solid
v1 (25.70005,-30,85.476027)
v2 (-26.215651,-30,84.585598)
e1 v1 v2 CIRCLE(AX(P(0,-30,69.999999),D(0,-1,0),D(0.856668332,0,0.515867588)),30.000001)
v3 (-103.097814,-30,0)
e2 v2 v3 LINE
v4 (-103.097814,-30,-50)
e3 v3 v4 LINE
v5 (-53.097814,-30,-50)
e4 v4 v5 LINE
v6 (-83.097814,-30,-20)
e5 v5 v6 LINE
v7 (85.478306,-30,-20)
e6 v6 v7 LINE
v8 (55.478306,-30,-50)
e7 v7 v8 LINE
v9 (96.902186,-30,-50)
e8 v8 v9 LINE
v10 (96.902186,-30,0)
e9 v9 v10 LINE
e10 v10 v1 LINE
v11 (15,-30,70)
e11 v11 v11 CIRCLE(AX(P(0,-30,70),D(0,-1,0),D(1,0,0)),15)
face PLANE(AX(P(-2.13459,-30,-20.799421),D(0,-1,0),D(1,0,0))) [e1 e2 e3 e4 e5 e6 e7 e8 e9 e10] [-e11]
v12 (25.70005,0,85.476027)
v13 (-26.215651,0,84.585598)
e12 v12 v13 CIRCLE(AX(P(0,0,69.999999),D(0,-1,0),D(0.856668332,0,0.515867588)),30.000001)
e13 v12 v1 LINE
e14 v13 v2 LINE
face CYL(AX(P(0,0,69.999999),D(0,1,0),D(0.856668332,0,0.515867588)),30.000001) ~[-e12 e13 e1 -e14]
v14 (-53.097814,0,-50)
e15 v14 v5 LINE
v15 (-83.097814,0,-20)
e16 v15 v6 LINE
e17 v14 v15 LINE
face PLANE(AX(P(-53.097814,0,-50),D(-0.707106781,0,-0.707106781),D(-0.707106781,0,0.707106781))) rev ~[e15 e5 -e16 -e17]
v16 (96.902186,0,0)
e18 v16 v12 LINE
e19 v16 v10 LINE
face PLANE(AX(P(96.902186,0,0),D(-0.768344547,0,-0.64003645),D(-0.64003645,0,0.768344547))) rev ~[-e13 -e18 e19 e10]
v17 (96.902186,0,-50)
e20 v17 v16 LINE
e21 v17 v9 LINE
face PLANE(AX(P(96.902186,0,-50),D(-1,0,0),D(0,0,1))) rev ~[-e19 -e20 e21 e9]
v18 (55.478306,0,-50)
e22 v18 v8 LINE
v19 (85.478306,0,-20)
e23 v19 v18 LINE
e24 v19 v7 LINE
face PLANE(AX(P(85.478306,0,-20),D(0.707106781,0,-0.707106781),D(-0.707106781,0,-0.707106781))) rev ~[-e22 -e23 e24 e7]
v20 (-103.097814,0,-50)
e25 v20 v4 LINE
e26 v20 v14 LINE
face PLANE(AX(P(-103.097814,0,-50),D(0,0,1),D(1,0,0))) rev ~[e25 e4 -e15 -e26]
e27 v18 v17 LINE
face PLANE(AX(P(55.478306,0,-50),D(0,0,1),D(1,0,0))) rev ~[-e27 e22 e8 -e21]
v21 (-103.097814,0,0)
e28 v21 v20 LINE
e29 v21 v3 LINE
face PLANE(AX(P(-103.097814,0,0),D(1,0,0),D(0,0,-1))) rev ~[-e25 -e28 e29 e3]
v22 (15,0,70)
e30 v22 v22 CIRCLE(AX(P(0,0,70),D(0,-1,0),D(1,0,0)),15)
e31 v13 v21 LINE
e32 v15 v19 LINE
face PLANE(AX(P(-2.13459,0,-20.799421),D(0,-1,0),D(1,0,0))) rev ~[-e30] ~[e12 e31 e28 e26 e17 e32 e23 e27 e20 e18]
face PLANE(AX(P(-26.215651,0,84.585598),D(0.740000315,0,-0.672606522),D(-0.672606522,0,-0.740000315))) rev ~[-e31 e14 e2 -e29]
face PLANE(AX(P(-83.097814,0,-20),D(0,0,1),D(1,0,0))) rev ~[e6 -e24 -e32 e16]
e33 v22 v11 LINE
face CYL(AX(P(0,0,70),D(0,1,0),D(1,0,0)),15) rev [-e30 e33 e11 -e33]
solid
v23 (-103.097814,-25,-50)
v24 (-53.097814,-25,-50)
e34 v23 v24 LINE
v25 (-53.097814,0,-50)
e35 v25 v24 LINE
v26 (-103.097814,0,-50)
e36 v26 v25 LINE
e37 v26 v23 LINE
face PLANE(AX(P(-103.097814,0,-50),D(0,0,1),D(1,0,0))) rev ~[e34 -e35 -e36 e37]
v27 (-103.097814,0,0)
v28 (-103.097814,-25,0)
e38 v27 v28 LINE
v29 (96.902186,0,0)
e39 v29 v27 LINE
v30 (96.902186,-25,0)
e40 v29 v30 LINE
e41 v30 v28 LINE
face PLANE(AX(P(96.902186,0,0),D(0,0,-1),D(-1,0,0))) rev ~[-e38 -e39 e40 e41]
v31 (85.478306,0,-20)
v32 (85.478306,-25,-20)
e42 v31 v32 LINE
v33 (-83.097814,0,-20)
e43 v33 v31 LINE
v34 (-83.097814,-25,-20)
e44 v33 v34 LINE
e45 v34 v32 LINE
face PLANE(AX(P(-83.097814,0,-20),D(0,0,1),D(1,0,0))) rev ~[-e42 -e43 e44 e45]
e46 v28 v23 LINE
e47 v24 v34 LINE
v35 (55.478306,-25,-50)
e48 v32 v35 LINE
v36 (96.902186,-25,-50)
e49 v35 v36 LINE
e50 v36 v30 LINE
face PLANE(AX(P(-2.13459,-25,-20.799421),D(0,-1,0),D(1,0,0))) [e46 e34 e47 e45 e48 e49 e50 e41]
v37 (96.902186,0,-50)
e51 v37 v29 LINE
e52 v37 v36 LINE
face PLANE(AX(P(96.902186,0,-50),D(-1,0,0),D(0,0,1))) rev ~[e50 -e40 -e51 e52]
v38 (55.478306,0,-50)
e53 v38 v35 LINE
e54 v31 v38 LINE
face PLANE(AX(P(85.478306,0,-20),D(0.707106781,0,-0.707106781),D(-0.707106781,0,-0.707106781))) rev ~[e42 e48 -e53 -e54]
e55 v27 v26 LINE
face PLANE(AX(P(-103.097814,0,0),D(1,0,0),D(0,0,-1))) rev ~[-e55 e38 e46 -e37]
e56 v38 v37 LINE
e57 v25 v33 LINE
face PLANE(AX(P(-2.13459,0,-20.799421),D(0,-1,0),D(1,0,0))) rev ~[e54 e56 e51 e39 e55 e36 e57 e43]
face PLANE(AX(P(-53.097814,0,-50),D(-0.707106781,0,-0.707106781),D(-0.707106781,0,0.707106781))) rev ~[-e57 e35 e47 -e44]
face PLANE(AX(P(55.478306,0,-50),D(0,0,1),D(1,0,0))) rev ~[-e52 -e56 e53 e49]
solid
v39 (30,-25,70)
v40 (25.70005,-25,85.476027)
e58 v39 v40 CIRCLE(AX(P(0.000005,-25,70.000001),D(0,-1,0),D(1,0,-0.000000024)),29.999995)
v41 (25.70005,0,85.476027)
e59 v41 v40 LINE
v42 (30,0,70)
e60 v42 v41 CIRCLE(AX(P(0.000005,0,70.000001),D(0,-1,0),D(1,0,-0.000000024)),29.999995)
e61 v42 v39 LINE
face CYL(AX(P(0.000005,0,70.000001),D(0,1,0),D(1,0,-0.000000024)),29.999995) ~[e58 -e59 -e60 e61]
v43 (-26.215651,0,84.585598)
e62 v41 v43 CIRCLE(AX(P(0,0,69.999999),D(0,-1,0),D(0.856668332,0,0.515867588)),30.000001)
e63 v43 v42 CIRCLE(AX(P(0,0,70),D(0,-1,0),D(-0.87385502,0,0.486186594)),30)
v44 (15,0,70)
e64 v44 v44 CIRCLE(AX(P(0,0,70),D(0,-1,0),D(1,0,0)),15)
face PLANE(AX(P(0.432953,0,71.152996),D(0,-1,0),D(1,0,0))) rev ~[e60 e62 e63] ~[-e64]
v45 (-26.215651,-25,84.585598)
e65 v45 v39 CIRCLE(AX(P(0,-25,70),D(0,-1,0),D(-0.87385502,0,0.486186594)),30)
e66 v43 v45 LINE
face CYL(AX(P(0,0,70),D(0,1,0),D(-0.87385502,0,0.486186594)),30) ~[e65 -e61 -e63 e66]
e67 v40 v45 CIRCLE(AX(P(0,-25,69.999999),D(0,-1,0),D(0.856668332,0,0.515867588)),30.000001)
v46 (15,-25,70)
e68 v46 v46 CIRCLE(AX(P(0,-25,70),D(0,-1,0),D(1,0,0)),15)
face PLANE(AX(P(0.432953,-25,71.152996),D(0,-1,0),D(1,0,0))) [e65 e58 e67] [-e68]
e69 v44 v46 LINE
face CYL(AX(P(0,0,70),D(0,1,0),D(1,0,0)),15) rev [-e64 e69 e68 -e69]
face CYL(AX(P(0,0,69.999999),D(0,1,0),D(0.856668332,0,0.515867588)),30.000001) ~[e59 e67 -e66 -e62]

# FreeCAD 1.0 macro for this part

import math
import FreeCAD as App
import Part
import Sketcher

V = App.Vector
Q = App.Units.Quantity

doc = App.newDocument("Part")
params = doc.addObject("Spreadsheet::Sheet", "Params")
for row, (alias, value) in enumerate([
    ("sketch1_diameter", "30 mm"),
    ("sketch1_radius", "30.000001 mm"),
    ("sketch1_width", "50 mm"),
    ("sketch1_width2", "200 mm"),
    ("pad1_length", "25 mm"),
    ("sketch2_diameter", "30 mm"),
    ("sketch2_radius", "30.000001 mm"),
    ("sketch2_width", "50 mm"),
    ("pad2_length", "30 mm"),
], start=1):
    params.set(f"A{row}", alias)
    params.set(f"B{row}", "=" + value)
    params.setAlias(f"B{row}", alias)

body = doc.addObject("PartDesign::Body", "Body")
body.AllowCompound = True

# Sketch on XZ plane
sketch1 = doc.addObject("Sketcher::SketchObject", "Sketch")
body.addObject(sketch1)
sketch1.AttachmentSupport = (doc.XZ_Plane, [""])
sketch1.MapMode = "FlatFace"
sketch1.addGeometry([
    Part.LineSegment(V(-103, 0, 0), V(-103, -50, 0)),  # 0
    Part.LineSegment(V(-103, -50, 0), V(-53, -50, 0)),  # 1
    Part.LineSegment(V(-53, -50, 0), V(-83, -20, 0)),  # 2
    Part.LineSegment(V(-83, -20, 0), V(85, -20, 0)),  # 3
    Part.LineSegment(V(85, -20, 0), V(55, -50, 0)),  # 4
    Part.LineSegment(V(55, -50, 0), V(97, -50, 0)),  # 5
    Part.LineSegment(V(97, -50, 0), V(97, 0, 0)),  # 6
    Part.LineSegment(V(97, 0, 0), V(-103, 0, 0)),  # 7
    Part.ArcOfCircle(Part.Circle(V(0, 70, 0), V(0, 0, 1), 30), math.radians(31), math.radians(151)),  # 8
    Part.ArcOfCircle(Part.Circle(V(0, 70, 0), V(0, 0, 1), 30), math.radians(151), math.radians(360)),  # 9
    Part.ArcOfCircle(Part.Circle(V(0, 70, 0), V(0, 0, 1), 30), math.radians(0), math.radians(31)),  # 10
    Part.Circle(V(0, 70, 0), V(0, 0, 1), 15),  # 11
], False)
sketch1.addConstraint([
    Sketcher.Constraint("Coincident", 0, 2, 1, 1),
    Sketcher.Constraint("Coincident", 1, 2, 2, 1),
    Sketcher.Constraint("Coincident", 2, 2, 3, 1),
    Sketcher.Constraint("Coincident", 3, 2, 4, 1),
    Sketcher.Constraint("Coincident", 4, 2, 5, 1),
    Sketcher.Constraint("Coincident", 5, 2, 6, 1),
    Sketcher.Constraint("Coincident", 6, 2, 7, 1),
    Sketcher.Constraint("Coincident", 7, 2, 0, 1),
    Sketcher.Constraint("Tangent", 8, 2, 9, 1),
    Sketcher.Constraint("Tangent", 9, 2, 10, 1),
    Sketcher.Constraint("Tangent", 10, 2, 8, 1),
    Sketcher.Constraint("Vertical", 0),
    Sketcher.Constraint("Horizontal", 1),
    Sketcher.Constraint("Horizontal", 3),
    Sketcher.Constraint("Horizontal", 5),
    Sketcher.Constraint("Vertical", 6),
    Sketcher.Constraint("Horizontal", 7),
    Sketcher.Constraint("Coincident", 11, 3, 8, 3),
    Sketcher.Constraint("PointOnObject", 8, 3, -2),
    Sketcher.Constraint("PointOnObject", 6, 2, -1),
    Sketcher.Constraint("Perpendicular", 2, 4),
    Sketcher.Constraint("Horizontal", 1, 2, 4, 2),
    Sketcher.Constraint("Horizontal", 11, 3, 9, 2),
    Sketcher.Constraint("Equal", 1, 0),
    Sketcher.Constraint("Equal", 2, 4),
    Sketcher.Constraint("Diameter", 11, Q("30 mm")),
    Sketcher.Constraint("Radius", 8, Q("30.000001 mm")),
    Sketcher.Constraint("DistanceX", 1, 1, 1, 2, Q("50 mm")),
    Sketcher.Constraint("DistanceX", 7, 2, 7, 1, Q("200 mm")),
    Sketcher.Constraint("DistanceY", -1, 1, 8, 3, Q("69.999999 mm")),
    Sketcher.Constraint("DistanceY", 2, 2, -1, 1, Q("20 mm")),
    Sketcher.Constraint("DistanceX", 3, 1, 3, 2, Q("168.57612 mm")),
    Sketcher.Constraint("DistanceX", 10, 3, 3, 2, Q("85.478301 mm")),
    Sketcher.Constraint("DistanceY", 8, 3, 8, 2, Q("14.585599 mm")),
    Sketcher.Constraint("DistanceX", -1, 1, 10, 2, Q("25.70005 mm")),
])
sketch1.setExpression("Constraints[25]", "Params.sketch1_diameter")
sketch1.setExpression("Constraints[26]", "Params.sketch1_radius")
sketch1.setExpression("Constraints[27]", "Params.sketch1_width")
sketch1.setExpression("Constraints[28]", "Params.sketch1_width2")
pad1 = doc.addObject("PartDesign::Pad", "Pad")
body.addObject(pad1)
pad1.Profile = sketch1
pad1.setExpression("Length", "Params.pad1_length")
body2 = doc.addObject("PartDesign::Body", "Body001")

# Sketch on XZ plane
sketch2 = doc.addObject("Sketcher::SketchObject", "Sketch001")
body2.addObject(sketch2)
sketch2.AttachmentSupport = (doc.getObject("XZ_Plane001"), [""])
sketch2.MapMode = "FlatFace"
sketch2.addGeometry([
    Part.LineSegment(V(-103, 0, 0), V(-103, -50, 0)),  # 0
    Part.LineSegment(V(-103, -50, 0), V(-53, -50, 0)),  # 1
    Part.LineSegment(V(-53, -50, 0), V(-83, -20, 0)),  # 2
    Part.LineSegment(V(-83, -20, 0), V(85, -20, 0)),  # 3
    Part.LineSegment(V(85, -20, 0), V(55, -50, 0)),  # 4
    Part.LineSegment(V(55, -50, 0), V(97, -50, 0)),  # 5
    Part.LineSegment(V(97, -50, 0), V(97, 0, 0)),  # 6
    Part.LineSegment(V(97, 0, 0), V(26, 85, 0)),  # 7
    Part.ArcOfCircle(Part.Circle(V(0, 70, 0), V(0, 0, 1), 30), math.radians(31), math.radians(151)),  # 8
    Part.LineSegment(V(-26, 85, 0), V(-103, 0, 0)),  # 9
    Part.Circle(V(0, 70, 0), V(0, 0, 1), 15),  # 10
], False)
sketch2.addConstraint([
    Sketcher.Constraint("Coincident", 0, 2, 1, 1),
    Sketcher.Constraint("Coincident", 1, 2, 2, 1),
    Sketcher.Constraint("Coincident", 2, 2, 3, 1),
    Sketcher.Constraint("Coincident", 3, 2, 4, 1),
    Sketcher.Constraint("Coincident", 4, 2, 5, 1),
    Sketcher.Constraint("Coincident", 5, 2, 6, 1),
    Sketcher.Constraint("Coincident", 6, 2, 7, 1),
    Sketcher.Constraint("Coincident", 7, 2, 8, 1),
    Sketcher.Constraint("Coincident", 8, 2, 9, 1),
    Sketcher.Constraint("Coincident", 9, 2, 0, 1),
    Sketcher.Constraint("Vertical", 0),
    Sketcher.Constraint("Horizontal", 1),
    Sketcher.Constraint("Horizontal", 3),
    Sketcher.Constraint("Horizontal", 5),
    Sketcher.Constraint("Vertical", 6),
    Sketcher.Constraint("Coincident", 10, 3, 8, 3),
    Sketcher.Constraint("PointOnObject", 8, 3, -2),
    Sketcher.Constraint("PointOnObject", 6, 2, -1),
    Sketcher.Constraint("PointOnObject", 9, 2, -1),
    Sketcher.Constraint("Perpendicular", 2, 4),
    Sketcher.Constraint("Horizontal", 1, 2, 4, 2),
    Sketcher.Constraint("Equal", 1, 0),
    Sketcher.Constraint("Equal", 2, 4),
    Sketcher.Constraint("Diameter", 10, Q("30 mm")),
    Sketcher.Constraint("Radius", 8, Q("30.000001 mm")),
    Sketcher.Constraint("DistanceX", 1, 1, 1, 2, Q("50 mm")),
    Sketcher.Constraint("DistanceY", -1, 1, 8, 3, Q("69.999999 mm")),
    Sketcher.Constraint("DistanceY", 2, 2, -1, 1, Q("20 mm")),
    Sketcher.Constraint("DistanceX", 1, 2, 5, 2, Q("150 mm")),
    Sketcher.Constraint("Distance", 7, Q("111.247002 mm")),
    Sketcher.Constraint("DistanceX", 3, 1, 3, 2, Q("168.57612 mm")),
    Sketcher.Constraint("DistanceY", 8, 3, 8, 2, Q("14.585599 mm")),
    Sketcher.Constraint("DistanceX", 8, 2, 7, 2, Q("51.915701 mm")),
])
sketch2.setExpression("Constraints[23]", "Params.sketch2_diameter")
sketch2.setExpression("Constraints[24]", "Params.sketch2_radius")
sketch2.setExpression("Constraints[25]", "Params.sketch2_width")
pad2 = doc.addObject("PartDesign::Pad", "Pad001")
body2.addObject(pad2)
pad2.Profile = sketch2
pad2.setExpression("Length", "Params.pad2_length")

doc.recompute()
